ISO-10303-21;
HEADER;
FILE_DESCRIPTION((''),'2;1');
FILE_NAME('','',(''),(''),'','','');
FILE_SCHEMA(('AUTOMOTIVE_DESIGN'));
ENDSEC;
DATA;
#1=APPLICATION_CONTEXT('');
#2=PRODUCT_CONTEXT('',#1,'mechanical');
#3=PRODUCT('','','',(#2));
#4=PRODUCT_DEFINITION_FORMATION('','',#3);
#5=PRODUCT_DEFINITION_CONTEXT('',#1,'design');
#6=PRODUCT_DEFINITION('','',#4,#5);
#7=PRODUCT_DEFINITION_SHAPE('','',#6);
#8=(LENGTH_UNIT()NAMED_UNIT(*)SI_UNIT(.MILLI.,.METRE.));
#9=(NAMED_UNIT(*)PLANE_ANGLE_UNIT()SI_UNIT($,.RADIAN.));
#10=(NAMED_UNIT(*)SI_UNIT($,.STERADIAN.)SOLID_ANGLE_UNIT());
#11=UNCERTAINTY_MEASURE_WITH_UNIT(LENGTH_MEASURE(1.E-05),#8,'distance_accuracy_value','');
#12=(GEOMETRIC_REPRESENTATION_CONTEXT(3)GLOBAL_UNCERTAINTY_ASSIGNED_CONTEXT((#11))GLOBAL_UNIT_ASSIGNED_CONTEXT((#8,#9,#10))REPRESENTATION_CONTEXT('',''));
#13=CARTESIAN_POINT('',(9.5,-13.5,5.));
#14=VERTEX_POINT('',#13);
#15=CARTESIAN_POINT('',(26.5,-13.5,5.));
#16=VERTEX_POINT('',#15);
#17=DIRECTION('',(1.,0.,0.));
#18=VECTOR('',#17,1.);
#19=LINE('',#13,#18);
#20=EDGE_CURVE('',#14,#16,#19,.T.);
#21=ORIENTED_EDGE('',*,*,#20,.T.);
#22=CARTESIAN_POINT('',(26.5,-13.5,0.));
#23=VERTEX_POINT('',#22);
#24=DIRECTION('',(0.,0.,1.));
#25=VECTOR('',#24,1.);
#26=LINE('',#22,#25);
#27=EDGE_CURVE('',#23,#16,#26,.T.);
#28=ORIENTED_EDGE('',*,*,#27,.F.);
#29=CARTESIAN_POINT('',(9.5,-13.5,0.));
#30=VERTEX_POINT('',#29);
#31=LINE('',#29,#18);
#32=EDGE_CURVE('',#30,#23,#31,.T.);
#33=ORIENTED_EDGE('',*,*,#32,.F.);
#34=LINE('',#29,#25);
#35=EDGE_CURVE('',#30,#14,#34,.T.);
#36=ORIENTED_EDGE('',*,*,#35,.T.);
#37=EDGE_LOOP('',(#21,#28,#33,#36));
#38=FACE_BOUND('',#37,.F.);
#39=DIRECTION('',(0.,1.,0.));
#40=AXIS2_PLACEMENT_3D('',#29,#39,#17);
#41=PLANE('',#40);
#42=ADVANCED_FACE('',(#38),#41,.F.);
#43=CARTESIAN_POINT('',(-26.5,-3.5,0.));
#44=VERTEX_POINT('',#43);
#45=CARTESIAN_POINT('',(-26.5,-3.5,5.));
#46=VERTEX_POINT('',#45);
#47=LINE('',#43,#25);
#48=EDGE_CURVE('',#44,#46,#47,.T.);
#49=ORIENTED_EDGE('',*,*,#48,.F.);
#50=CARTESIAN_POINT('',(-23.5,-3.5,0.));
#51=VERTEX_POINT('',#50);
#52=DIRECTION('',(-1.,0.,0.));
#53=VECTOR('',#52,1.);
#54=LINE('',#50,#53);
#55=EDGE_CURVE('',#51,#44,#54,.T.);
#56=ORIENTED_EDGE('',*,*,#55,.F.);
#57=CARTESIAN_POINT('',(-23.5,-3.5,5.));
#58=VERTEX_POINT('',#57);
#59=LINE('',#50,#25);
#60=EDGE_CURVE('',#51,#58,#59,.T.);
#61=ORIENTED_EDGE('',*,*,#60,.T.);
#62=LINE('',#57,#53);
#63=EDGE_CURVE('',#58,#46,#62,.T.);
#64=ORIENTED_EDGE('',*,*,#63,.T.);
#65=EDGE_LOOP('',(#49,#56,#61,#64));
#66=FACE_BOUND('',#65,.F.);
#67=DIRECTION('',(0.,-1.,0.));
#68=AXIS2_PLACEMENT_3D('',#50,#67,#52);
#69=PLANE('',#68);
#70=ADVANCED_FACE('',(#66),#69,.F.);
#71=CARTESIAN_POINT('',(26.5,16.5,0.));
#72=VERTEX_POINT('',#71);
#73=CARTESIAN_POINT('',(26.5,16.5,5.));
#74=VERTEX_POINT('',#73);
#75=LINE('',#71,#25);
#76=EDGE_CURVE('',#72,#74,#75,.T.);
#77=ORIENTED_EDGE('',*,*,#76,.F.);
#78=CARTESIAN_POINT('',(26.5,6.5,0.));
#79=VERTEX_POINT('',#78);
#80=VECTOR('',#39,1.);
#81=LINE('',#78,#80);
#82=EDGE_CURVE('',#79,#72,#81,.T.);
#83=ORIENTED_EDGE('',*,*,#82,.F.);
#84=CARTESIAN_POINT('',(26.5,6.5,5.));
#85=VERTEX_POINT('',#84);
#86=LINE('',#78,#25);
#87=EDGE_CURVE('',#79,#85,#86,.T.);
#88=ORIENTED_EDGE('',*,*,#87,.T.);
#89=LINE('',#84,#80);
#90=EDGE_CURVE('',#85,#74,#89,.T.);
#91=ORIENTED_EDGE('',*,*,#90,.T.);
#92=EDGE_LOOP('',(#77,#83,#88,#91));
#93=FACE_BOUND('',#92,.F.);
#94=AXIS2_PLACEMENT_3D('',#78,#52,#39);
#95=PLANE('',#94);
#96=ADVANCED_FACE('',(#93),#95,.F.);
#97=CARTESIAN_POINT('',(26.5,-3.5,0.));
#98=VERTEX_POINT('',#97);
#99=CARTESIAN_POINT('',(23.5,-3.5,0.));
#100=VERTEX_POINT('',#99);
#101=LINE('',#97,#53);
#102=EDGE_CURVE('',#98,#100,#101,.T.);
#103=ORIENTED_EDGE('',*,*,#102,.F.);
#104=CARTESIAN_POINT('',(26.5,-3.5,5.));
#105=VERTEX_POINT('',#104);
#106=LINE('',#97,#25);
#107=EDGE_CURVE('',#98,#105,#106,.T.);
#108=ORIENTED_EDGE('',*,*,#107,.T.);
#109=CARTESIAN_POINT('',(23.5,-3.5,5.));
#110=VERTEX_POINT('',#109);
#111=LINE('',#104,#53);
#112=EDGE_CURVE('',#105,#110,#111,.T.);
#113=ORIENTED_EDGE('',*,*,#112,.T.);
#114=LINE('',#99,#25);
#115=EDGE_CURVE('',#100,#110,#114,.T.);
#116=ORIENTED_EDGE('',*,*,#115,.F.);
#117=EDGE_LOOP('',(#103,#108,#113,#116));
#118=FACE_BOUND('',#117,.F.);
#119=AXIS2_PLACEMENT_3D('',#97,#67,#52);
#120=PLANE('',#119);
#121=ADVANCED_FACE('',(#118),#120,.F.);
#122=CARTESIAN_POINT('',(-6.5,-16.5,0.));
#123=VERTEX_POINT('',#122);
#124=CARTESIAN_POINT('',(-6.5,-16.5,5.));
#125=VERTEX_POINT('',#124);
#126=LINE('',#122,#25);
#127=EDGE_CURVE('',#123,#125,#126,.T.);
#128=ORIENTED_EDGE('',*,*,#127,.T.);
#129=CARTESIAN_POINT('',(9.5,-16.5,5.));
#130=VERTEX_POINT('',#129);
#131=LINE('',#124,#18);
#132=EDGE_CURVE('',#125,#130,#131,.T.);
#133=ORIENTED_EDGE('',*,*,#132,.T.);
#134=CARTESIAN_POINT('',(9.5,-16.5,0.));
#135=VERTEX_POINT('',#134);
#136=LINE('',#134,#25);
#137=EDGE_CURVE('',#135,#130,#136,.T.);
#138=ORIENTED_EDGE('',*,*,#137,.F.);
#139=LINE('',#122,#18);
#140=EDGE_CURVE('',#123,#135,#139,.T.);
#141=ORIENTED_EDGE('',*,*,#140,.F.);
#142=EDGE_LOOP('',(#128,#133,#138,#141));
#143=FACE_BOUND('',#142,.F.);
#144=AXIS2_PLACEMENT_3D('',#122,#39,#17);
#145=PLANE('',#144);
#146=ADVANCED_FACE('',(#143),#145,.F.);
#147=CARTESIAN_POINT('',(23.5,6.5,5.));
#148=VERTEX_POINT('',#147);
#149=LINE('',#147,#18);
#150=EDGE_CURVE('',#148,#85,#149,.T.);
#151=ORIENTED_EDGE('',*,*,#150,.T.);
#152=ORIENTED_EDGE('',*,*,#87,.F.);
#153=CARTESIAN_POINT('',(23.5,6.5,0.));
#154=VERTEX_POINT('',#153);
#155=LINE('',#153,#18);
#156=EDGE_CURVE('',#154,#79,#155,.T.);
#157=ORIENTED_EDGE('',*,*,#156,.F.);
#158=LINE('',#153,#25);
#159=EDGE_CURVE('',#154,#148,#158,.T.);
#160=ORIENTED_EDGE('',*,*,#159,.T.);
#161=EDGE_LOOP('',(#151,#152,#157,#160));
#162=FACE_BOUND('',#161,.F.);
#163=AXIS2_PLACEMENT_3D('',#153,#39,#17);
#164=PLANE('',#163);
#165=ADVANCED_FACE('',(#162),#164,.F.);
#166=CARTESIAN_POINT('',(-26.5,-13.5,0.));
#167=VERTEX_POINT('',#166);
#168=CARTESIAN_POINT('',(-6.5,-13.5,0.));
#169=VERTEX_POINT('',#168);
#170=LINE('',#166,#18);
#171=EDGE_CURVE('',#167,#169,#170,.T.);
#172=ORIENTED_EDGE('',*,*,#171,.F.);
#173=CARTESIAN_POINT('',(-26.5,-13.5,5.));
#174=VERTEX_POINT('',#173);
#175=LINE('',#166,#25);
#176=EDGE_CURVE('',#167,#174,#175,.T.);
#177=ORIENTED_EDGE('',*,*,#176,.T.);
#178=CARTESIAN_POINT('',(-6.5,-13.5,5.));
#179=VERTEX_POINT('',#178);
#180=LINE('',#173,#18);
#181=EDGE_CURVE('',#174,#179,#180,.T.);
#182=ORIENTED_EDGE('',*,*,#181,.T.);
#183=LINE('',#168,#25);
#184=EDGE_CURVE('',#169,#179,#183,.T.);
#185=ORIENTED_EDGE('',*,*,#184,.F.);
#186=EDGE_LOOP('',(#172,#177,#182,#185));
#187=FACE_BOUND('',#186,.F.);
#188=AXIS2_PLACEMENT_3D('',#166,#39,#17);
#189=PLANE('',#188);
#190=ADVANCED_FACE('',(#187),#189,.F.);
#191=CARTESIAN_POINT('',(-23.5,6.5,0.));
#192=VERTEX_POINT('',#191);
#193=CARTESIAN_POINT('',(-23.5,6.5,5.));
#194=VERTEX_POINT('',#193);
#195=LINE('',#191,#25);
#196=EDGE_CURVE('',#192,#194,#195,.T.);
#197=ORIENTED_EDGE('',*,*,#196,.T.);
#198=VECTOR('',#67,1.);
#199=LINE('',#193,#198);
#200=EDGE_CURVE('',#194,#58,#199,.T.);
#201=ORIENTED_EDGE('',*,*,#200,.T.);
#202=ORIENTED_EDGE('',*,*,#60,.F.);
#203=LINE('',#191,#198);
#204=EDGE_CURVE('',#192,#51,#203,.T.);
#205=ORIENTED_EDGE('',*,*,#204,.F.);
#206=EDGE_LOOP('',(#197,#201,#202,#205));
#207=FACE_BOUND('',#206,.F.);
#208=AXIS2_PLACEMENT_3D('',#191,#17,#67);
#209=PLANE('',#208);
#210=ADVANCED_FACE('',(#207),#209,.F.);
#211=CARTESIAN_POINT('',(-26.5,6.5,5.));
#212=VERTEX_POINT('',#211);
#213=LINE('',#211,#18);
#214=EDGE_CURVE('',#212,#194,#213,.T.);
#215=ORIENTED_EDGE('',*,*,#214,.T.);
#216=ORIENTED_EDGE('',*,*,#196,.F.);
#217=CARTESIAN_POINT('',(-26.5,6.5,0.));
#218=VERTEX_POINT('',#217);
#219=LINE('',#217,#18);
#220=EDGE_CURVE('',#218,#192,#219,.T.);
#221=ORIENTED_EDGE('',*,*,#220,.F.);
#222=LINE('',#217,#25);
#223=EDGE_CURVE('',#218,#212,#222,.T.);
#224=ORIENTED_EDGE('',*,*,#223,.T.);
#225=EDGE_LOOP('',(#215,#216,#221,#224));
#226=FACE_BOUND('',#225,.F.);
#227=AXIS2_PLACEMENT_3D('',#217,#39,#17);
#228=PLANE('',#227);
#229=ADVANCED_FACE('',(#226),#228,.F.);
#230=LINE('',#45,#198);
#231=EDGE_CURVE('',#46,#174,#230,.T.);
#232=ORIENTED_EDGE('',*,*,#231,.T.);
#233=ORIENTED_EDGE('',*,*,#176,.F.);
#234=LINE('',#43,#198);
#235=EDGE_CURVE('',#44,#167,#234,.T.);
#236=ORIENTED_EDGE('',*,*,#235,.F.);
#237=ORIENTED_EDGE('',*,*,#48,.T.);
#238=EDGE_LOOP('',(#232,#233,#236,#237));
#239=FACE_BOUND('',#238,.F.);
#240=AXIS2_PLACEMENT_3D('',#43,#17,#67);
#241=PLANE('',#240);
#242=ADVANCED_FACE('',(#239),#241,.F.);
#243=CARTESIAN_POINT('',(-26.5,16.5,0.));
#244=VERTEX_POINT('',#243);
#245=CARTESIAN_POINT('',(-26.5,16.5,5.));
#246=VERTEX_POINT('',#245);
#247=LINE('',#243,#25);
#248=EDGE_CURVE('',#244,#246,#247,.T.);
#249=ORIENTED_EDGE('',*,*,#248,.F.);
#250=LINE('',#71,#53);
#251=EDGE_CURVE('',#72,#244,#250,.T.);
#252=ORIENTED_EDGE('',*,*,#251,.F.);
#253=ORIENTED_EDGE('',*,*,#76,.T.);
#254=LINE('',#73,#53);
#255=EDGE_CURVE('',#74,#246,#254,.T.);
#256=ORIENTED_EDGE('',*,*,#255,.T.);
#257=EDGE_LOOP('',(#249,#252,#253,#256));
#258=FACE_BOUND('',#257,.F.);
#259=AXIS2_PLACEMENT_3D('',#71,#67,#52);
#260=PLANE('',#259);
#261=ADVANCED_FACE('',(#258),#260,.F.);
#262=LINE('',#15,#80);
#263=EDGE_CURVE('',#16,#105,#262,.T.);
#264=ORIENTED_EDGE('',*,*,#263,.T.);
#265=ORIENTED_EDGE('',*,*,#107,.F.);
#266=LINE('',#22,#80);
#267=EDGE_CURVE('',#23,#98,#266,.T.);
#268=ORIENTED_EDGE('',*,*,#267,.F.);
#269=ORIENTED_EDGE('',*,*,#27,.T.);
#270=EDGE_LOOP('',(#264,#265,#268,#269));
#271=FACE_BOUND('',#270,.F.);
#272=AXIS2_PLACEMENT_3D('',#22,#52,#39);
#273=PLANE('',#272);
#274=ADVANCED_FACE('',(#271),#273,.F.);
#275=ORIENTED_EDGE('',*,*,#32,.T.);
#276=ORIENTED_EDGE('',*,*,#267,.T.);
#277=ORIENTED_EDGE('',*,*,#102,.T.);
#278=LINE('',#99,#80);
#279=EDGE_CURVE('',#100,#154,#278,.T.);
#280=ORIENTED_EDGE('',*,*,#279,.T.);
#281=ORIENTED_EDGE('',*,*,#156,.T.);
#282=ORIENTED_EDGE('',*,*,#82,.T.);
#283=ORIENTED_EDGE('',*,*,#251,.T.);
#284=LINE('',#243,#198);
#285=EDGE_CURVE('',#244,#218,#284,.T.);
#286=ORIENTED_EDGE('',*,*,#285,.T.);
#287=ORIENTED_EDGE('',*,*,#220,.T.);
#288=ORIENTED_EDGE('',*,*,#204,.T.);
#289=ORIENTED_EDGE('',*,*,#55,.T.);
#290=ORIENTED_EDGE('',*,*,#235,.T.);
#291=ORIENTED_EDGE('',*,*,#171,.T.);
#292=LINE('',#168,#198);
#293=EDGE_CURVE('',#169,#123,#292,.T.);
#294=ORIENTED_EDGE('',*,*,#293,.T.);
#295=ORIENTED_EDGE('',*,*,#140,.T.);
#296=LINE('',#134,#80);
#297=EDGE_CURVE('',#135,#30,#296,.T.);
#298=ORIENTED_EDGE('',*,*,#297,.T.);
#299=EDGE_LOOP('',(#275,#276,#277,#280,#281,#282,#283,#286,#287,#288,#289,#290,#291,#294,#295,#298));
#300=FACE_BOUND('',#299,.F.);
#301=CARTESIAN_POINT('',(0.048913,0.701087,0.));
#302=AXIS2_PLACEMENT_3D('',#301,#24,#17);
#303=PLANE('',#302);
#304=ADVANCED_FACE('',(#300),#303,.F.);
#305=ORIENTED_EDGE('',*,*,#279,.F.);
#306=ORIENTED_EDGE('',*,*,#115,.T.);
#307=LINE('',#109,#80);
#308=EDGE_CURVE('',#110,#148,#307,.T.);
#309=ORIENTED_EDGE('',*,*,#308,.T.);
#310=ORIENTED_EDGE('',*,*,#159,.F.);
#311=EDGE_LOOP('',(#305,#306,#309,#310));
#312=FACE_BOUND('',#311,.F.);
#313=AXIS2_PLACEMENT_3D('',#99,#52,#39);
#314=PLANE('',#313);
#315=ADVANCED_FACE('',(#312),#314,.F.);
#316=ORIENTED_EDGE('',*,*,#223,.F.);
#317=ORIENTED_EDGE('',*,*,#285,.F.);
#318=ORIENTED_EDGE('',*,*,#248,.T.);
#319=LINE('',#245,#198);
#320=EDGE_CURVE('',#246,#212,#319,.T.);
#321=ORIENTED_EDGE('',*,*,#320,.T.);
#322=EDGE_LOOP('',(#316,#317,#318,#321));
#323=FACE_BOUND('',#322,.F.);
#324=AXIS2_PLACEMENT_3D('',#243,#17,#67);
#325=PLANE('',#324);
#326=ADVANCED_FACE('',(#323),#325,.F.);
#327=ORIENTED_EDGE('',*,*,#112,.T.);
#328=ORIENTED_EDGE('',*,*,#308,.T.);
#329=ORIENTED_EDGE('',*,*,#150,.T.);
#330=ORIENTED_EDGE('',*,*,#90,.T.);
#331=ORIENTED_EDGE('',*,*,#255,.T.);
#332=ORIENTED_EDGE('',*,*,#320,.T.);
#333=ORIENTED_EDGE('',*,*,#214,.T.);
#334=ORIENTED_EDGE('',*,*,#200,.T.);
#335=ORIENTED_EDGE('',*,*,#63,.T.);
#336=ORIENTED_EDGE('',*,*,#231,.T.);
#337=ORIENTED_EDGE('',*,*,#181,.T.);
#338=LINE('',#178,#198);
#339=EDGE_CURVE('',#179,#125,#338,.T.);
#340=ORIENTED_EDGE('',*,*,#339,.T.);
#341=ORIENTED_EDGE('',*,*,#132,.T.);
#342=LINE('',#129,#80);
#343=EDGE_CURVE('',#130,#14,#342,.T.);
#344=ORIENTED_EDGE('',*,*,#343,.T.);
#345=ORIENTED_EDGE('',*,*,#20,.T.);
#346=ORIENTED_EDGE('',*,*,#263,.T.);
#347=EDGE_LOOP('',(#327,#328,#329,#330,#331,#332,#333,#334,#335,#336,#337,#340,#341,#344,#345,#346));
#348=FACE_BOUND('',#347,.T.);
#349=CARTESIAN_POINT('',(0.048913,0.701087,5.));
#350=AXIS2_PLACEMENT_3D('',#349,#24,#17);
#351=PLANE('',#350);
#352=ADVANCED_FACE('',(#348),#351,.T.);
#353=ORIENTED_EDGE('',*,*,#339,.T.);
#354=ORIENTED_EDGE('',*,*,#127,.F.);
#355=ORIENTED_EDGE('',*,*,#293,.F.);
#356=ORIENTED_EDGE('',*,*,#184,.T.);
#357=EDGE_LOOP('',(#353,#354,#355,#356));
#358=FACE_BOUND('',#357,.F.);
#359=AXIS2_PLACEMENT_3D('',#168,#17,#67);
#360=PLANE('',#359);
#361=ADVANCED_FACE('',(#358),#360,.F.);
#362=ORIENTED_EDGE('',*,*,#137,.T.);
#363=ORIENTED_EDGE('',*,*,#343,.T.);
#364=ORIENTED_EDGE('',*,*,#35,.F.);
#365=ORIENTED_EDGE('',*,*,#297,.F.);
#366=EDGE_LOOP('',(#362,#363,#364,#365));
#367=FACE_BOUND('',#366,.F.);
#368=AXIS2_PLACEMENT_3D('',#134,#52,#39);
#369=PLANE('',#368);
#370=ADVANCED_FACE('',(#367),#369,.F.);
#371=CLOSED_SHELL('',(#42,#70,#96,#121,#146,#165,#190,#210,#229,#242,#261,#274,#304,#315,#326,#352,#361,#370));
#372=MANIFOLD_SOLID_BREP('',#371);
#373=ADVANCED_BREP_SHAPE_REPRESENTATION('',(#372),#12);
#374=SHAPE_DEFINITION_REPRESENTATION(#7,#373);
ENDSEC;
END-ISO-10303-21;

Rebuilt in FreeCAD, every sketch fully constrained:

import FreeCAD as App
import Part
import Sketcher

V = App.Vector
Q = App.Units.Quantity


def add_polygon(sketch, points):
    """Adds a closed chain of lines whose ends are joined by coincident constraints."""
    first, n = sketch.GeometryCount, len(points)
    for a, b in zip(points, points[1:] + points[:1]):
        sketch.addGeometry(Part.LineSegment(App.Vector(*a, 0), App.Vector(*b, 0)), False)
    for i in range(n):
        sketch.addConstraint(Sketcher.Constraint("Coincident", first + i, 2, first + (i + 1) % n, 1))

doc = App.newDocument("Part")
body = doc.addObject("PartDesign::Body", "Body")

sketch1 = body.newObject("Sketcher::SketchObject", "Sketch")
sketch1.AttachmentSupport = (doc.getObject("XY_Plane"), [""])
sketch1.MapMode = "FlatFace"
add_polygon(sketch1, [(26.5, 16.5), (-26.5, 16.5), (-26.5, 6.5), (-23.5, 6.5), (-23.5, -3.5), (-26.5, -3.5), (-26.5, -13.5), (-6.5, -13.5), (-6.5, -16.5), (9.5, -16.5), (9.5, -13.5), (26.5, -13.5), (26.5, -3.5), (23.5, -3.5), (23.5, 6.5), (26.5, 6.5)])
sketch1.addConstraint([
    Sketcher.Constraint("Horizontal", 0),
    Sketcher.Constraint("Vertical", 1),
    Sketcher.Constraint("Horizontal", 2),
    Sketcher.Constraint("Vertical", 3),
    Sketcher.Constraint("Horizontal", 4),
    Sketcher.Constraint("Vertical", 5),
    Sketcher.Constraint("Horizontal", 6),
    Sketcher.Constraint("Vertical", 7),
    Sketcher.Constraint("Horizontal", 8),
    Sketcher.Constraint("Vertical", 9),
    Sketcher.Constraint("Horizontal", 10),
    Sketcher.Constraint("Vertical", 11),
    Sketcher.Constraint("Horizontal", 12),
    Sketcher.Constraint("Vertical", 13),
    Sketcher.Constraint("Horizontal", 14),
    Sketcher.Constraint("Vertical", 15),
    Sketcher.Constraint("Symmetric", 5, 2, 10, 2, -2),
    Sketcher.Constraint("Symmetric", 3, 2, 12, 2, -2),
    Sketcher.Constraint("Symmetric", 1, 2, 14, 2, -2),
    Sketcher.Constraint("Vertical", 1, 2, 4, 2),
    Sketcher.Constraint("Equal", 1, 3),
    Sketcher.Constraint("Equal", 3, 5),
    Sketcher.Constraint("Equal", 14, 7),
    Sketcher.Constraint("DistanceX", 0, 2, 0, 1, Q("53 mm")),
    Sketcher.Constraint("DistanceX", 2, 1, 2, 2, Q("3 mm")),
    Sketcher.Constraint("DistanceX", 6, 1, 6, 2, Q("20 mm")),
    Sketcher.Constraint("DistanceX", 8, 1, 8, 2, Q("16 mm")),
    Sketcher.Constraint("DistanceY", 1, 2, 1, 1, Q("10 mm")),
    Sketcher.Constraint("DistanceY", -1, 1, 0, 2, Q("16.5 mm")),
])
pad1 = body.newObject("PartDesign::Pad", "Pad")
pad1.Profile = sketch1
pad1.Length = 5

doc.recompute()
